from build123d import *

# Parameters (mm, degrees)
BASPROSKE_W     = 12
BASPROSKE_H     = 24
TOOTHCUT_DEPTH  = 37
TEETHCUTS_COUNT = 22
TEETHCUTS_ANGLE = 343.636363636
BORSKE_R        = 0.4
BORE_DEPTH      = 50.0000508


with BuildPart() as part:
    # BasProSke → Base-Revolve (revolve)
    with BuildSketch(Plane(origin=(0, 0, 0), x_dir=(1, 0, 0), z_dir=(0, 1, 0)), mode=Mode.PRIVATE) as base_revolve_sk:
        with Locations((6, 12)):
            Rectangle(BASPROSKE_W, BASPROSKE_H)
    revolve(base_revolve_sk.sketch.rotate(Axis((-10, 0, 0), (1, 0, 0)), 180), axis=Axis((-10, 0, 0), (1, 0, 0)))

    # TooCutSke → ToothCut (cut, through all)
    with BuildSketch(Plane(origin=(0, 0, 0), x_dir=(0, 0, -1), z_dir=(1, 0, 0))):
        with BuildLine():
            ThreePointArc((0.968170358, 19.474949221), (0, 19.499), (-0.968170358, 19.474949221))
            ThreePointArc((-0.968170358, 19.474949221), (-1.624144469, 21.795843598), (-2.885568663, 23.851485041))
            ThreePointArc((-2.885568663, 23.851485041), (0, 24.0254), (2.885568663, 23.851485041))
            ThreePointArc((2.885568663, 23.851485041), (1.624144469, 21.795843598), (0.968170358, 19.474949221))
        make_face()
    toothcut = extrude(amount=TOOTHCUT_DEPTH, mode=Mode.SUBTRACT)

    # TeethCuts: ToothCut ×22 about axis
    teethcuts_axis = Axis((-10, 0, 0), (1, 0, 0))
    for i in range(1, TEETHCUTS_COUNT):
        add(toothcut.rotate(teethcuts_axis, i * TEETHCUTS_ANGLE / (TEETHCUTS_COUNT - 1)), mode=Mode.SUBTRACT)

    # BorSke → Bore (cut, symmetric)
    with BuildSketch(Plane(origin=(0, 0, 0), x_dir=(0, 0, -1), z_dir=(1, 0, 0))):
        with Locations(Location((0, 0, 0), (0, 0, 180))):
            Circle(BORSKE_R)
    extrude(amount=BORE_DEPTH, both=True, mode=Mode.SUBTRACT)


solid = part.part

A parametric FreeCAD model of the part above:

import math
import FreeCAD as App
import Part
import Sketcher
Q = App.Units.Quantity


def add_polygon(sketch, points):
    """Adds a closed chain of lines whose ends are joined by coincident constraints."""
    first, n = sketch.GeometryCount, len(points)
    for a, b in zip(points, points[1:] + points[:1]):
        sketch.addGeometry(Part.LineSegment(App.Vector(*a, 0), App.Vector(*b, 0)), False)
    for i in range(n):
        sketch.addConstraint(Sketcher.Constraint("Coincident", first + i, 2, first + (i + 1) % n, 1))

doc = App.newDocument("Part")
params = doc.addObject("Spreadsheet::Sheet", "Params")
for row, (alias, value) in enumerate([
    ("sketch1_width", "12 mm"),
    ("sketch1_height", "24 mm"),
    ("revolution_angle", "360 deg"),
    ("sketch2_radius", "8.8 mm"),
    ("sketch3_diameter", "0.8 mm"),
    ("pocket2_length", "100.000102 mm"),
], start=1):
    params.set(f"A{row}", alias)
    params.set(f"B{row}", "=" + value)
    params.setAlias(f"B{row}", alias)

body = doc.addObject("PartDesign::Body", "Body")

# Sketch on XZ plane
sketch1 = doc.addObject("Sketcher::SketchObject", "Sketch")
body.addObject(sketch1)
sketch1.AttachmentSupport = (doc.XZ_Plane, [""])
sketch1.MapMode = "FlatFace"
add_polygon(sketch1, [(0, -24), (0, 0), (12, 0), (12, -24)])  # lines 0-3
sketch1.addConstraint(Sketcher.Constraint("Vertical", 0))
sketch1.addConstraint(Sketcher.Constraint("Horizontal", 1))
sketch1.addConstraint(Sketcher.Constraint("Vertical", 2))
sketch1.addConstraint(Sketcher.Constraint("Horizontal", 3))
sketch1.addConstraint(Sketcher.Constraint("Coincident", 0, 2, -1, 1))
sketch1.addConstraint(Sketcher.Constraint("DistanceX", 1, 1, 1, 2, Q("12 mm")))
sketch1.addConstraint(Sketcher.Constraint("DistanceY", 0, 1, 0, 2, Q("24 mm")))
sketch1.setExpression("Constraints[9]", "Params.sketch1_width")
sketch1.setExpression("Constraints[10]", "Params.sketch1_height")
revolution = doc.addObject("PartDesign::Revolution", "Revolution")
body.addObject(revolution)
revolution.Profile = sketch1
revolution.ReferenceAxis = (sketch1, ["H_Axis"])
revolution.setExpression("Angle", "Params.revolution_angle")

# Sketch on YZ plane
sketch2 = doc.addObject("Sketcher::SketchObject", "Sketch001")
body.addObject(sketch2)
sketch2.AttachmentSupport = (doc.YZ_Plane, [""])
sketch2.MapMode = "FlatFace"
sketch2.addGeometry(Part.ArcOfCircle(Part.Circle(App.Vector(0, 0, 0), App.Vector(0, 0, 1), 19.5), math.radians(-2.85), math.radians(2.85)), False)
sketch2.addGeometry(Part.ArcOfCircle(Part.Circle(App.Vector(18.3, -9.7, 0), App.Vector(0, 0, 1), 8.8), math.radians(51), math.radians(82)), False)
sketch2.addGeometry(Part.ArcOfCircle(Part.Circle(App.Vector(0, 0, 0), App.Vector(0, 0, 1), 24), math.radians(-6.9), math.radians(6.9)), False)
sketch2.addGeometry(Part.ArcOfCircle(Part.Circle(App.Vector(18.3, 9.7, 0), App.Vector(0, 0, 1), 8.8), math.radians(-82), math.radians(-51)), False)
sketch2.addConstraint(Sketcher.Constraint("Coincident", 0, 1, 1, 2))
sketch2.addConstraint(Sketcher.Constraint("Coincident", 1, 1, 2, 1))
sketch2.addConstraint(Sketcher.Constraint("Coincident", 2, 2, 3, 2))
sketch2.addConstraint(Sketcher.Constraint("Coincident", 3, 1, 0, 2))
sketch2.addConstraint(Sketcher.Constraint("Coincident", 0, 3, -1, 1))
sketch2.addConstraint(Sketcher.Constraint("Coincident", 2, 3, -1, 1))
sketch2.addConstraint(Sketcher.Constraint("Equal", 1, 3))
sketch2.addConstraint(Sketcher.Constraint("Symmetric", 1, 3, 3, 3, -1))
sketch2.addConstraint(Sketcher.Constraint("Radius", 1, Q("8.8 mm")))
sketch2.addConstraint(Sketcher.Constraint("Radius", 0, Q("19.499 mm")))
sketch2.addConstraint(Sketcher.Constraint("Radius", 2, Q("24.0254 mm")))
sketch2.addConstraint(Sketcher.Constraint("DistanceY", 1, 1, 0, 1, Q("1.917398 mm")))
sketch2.addConstraint(Sketcher.Constraint("DistanceX", -1, 1, 1, 3, Q("18.26452 mm")))
sketch2.setExpression("Constraints[8]", "Params.sketch2_radius")
pocket1 = doc.addObject("PartDesign::Pocket", "Pocket")
body.addObject(pocket1)
pocket1.Profile = sketch2
pocket1.Type = "ThroughAll"
pocket1.Reversed = True
doc.recompute()

polarpattern = doc.addObject("PartDesign::PolarPattern", "PolarPattern")
body.addObject(polarpattern)
polarpattern.Originals = [pocket1]
polarpattern.Axis = (doc.X_Axis, [""])
polarpattern.Angle = 360
polarpattern.Occurrences = 22
body.Tip = polarpattern

# Sketch on YZ plane
sketch3 = doc.addObject("Sketcher::SketchObject", "Sketch002")
body.addObject(sketch3)
sketch3.AttachmentSupport = (doc.YZ_Plane, [""])
sketch3.MapMode = "FlatFace"
sketch3.addGeometry(Part.Circle(App.Vector(0, 0, 0), App.Vector(0, 0, 1), 0.4), False)
sketch3.addConstraint(Sketcher.Constraint("Coincident", 0, 3, -1, 1))
sketch3.addConstraint(Sketcher.Constraint("Diameter", 0, Q("0.8 mm")))
sketch3.setExpression("Constraints[1]", "Params.sketch3_diameter")
pocket2 = doc.addObject("PartDesign::Pocket", "Pocket001")
body.addObject(pocket2)
pocket2.Profile = sketch3
pocket2.setExpression("Length", "Params.pocket2_length")
pocket2.Midplane = True

doc.recompute()
